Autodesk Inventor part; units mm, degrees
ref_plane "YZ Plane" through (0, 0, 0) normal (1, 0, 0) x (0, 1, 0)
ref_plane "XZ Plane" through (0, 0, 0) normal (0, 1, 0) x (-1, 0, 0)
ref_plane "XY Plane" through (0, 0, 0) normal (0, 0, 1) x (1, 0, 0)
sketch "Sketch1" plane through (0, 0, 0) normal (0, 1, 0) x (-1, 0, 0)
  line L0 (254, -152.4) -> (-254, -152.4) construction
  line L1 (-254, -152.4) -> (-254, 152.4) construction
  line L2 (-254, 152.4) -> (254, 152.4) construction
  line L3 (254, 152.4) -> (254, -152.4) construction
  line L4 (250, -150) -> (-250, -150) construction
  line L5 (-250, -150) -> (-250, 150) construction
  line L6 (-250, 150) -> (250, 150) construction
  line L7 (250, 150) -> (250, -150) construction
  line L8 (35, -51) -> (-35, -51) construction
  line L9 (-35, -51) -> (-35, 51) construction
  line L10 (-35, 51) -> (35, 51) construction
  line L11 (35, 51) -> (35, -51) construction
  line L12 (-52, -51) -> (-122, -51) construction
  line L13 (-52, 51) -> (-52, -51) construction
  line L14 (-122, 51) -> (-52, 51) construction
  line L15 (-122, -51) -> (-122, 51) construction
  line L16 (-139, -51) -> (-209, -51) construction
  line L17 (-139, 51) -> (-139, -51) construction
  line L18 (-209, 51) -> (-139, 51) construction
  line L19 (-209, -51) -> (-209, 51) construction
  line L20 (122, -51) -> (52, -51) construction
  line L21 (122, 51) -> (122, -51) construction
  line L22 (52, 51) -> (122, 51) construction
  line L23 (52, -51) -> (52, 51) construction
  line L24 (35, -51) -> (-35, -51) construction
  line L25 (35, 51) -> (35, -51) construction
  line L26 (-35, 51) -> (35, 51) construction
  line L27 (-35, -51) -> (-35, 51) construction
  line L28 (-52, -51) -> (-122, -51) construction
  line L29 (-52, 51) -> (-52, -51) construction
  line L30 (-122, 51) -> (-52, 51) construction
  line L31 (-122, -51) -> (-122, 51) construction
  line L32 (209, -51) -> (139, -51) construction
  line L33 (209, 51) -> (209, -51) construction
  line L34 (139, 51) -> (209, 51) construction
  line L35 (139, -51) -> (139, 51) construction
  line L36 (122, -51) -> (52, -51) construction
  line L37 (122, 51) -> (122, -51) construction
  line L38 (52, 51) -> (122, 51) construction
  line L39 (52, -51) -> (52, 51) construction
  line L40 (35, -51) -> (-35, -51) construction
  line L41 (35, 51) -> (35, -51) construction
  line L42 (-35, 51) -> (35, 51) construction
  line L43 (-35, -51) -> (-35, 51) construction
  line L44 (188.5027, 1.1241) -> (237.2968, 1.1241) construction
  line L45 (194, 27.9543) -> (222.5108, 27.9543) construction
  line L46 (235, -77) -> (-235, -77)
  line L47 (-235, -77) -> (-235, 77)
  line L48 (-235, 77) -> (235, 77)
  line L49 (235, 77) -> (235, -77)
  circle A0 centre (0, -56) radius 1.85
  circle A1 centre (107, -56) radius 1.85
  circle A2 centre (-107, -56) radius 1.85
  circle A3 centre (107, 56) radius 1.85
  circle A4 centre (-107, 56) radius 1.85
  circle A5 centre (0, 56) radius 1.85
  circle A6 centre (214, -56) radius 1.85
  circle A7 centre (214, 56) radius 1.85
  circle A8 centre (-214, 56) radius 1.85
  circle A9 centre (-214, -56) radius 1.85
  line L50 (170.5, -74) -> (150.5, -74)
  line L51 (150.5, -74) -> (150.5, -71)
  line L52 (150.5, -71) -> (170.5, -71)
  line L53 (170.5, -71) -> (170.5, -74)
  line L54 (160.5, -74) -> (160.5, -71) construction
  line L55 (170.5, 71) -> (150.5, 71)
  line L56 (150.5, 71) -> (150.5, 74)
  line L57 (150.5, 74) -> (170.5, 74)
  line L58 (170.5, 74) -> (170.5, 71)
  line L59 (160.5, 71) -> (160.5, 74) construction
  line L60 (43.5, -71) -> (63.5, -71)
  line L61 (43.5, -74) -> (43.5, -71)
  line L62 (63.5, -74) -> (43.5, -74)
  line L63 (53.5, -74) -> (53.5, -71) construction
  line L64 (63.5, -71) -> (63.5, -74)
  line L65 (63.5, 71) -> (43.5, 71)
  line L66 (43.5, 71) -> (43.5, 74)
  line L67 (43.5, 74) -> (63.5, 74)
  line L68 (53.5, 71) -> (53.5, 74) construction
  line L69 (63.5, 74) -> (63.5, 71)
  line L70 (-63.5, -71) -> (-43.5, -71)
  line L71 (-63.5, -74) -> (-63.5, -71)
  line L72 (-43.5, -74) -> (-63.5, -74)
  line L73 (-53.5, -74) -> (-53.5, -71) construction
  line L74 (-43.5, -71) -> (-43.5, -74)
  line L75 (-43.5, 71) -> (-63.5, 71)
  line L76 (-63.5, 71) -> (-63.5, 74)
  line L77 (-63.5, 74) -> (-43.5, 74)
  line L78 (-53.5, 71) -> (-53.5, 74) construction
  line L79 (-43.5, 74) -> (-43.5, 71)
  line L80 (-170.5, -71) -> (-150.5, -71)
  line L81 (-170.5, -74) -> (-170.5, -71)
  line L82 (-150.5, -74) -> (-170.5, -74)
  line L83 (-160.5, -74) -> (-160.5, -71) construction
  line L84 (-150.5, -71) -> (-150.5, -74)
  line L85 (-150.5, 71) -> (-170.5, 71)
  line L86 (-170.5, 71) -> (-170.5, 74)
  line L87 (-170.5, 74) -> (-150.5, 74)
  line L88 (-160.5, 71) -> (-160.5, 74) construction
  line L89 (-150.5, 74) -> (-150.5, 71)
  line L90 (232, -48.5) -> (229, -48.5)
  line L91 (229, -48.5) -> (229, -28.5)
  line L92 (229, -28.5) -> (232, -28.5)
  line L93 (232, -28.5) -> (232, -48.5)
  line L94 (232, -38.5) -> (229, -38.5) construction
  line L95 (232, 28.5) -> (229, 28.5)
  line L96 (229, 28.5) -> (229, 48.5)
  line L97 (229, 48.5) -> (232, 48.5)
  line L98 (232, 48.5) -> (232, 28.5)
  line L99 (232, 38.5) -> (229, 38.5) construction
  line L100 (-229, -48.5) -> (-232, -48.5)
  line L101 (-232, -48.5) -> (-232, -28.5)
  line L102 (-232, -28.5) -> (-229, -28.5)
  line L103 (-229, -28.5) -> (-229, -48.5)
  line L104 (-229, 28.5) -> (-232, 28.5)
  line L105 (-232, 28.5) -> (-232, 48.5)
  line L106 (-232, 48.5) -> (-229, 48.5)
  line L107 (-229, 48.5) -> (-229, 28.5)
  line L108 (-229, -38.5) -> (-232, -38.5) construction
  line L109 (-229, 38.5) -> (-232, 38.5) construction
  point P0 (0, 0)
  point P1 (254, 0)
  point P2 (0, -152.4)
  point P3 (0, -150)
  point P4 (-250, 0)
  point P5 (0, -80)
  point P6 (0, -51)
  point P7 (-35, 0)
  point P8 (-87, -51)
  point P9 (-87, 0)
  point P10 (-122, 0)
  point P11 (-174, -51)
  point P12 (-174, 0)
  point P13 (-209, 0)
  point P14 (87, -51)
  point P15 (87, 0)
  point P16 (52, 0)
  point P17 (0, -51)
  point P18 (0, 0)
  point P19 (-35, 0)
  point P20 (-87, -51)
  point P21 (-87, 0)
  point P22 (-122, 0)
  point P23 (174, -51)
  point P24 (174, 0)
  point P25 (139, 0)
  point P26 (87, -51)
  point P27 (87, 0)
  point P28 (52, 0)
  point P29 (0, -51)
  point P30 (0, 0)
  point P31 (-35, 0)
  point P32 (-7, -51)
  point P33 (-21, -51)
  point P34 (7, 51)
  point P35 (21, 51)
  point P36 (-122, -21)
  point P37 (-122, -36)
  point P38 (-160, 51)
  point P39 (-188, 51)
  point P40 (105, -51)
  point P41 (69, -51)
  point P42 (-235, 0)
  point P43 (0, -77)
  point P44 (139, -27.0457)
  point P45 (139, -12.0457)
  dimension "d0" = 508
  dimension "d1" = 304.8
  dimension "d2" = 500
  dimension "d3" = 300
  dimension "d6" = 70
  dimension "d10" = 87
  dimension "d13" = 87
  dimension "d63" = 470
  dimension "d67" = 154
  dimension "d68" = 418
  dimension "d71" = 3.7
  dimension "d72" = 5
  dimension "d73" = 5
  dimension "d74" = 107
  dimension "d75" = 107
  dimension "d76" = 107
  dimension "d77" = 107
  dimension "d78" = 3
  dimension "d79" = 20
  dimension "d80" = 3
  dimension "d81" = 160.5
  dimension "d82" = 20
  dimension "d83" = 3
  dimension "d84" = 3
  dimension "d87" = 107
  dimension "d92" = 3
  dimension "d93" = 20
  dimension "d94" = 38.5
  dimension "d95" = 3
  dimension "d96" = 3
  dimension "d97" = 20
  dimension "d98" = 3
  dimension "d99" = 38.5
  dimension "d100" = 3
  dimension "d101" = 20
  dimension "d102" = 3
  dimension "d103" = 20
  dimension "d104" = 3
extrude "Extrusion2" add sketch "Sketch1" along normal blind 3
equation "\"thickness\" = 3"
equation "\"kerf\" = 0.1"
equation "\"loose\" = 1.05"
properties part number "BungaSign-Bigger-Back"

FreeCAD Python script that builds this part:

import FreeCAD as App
import Part
import Sketcher

V = App.Vector
Q = App.Units.Quantity

doc = App.newDocument("Part")
body = doc.addObject("PartDesign::Body", "Body")

# Sketch on XZ plane
sketch1 = body.newObject("Sketcher::SketchObject", "Sketch")
sketch1.AttachmentSupport = (doc.getObject("XZ_Plane"), [""])
sketch1.MapMode = "FlatFace"
sketch1.addGeometry([
    Part.LineSegment(V(235, -77, 0), V(-235, -77, 0)),  # 0
    Part.LineSegment(V(-235, -77, 0), V(-235, 77, 0)),  # 1
    Part.LineSegment(V(-235, 77, 0), V(235, 77, 0)),  # 2
    Part.LineSegment(V(235, 77, 0), V(235, -77, 0)),  # 3
    Part.LineSegment(V(170.5, -74, 0), V(170.5, -71, 0)),  # 4
    Part.LineSegment(V(170.5, -71, 0), V(150.5, -71, 0)),  # 5
    Part.LineSegment(V(150.5, -71, 0), V(150.5, -74, 0)),  # 6
    Part.LineSegment(V(150.5, -74, 0), V(170.5, -74, 0)),  # 7
    Part.Circle(V(214, -56, 0), V(0, 0, 1), 1.9),  # 8
    Part.LineSegment(V(63.5, -74, 0), V(63.5, -71, 0)),  # 9
    Part.LineSegment(V(63.5, -71, 0), V(43.5, -71, 0)),  # 10
    Part.LineSegment(V(43.5, -71, 0), V(43.5, -74, 0)),  # 11
    Part.LineSegment(V(43.5, -74, 0), V(63.5, -74, 0)),  # 12
    Part.Circle(V(107, -56, 0), V(0, 0, 1), 1.9),  # 13
    Part.LineSegment(V(229, -28.5, 0), V(229, -48.5, 0)),  # 14
    Part.LineSegment(V(229, -48.5, 0), V(232, -48.5, 0)),  # 15
    Part.LineSegment(V(232, -48.5, 0), V(232, -28.5, 0)),  # 16
    Part.LineSegment(V(232, -28.5, 0), V(229, -28.5, 0)),  # 17
    Part.LineSegment(V(-43.5, -74, 0), V(-43.5, -71, 0)),  # 18
    Part.LineSegment(V(-43.5, -71, 0), V(-63.5, -71, 0)),  # 19
    Part.LineSegment(V(-63.5, -71, 0), V(-63.5, -74, 0)),  # 20
    Part.LineSegment(V(-63.5, -74, 0), V(-43.5, -74, 0)),  # 21
    Part.Circle(V(0, -56, 0), V(0, 0, 1), 1.9),  # 22
    Part.Circle(V(-107, -56, 0), V(0, 0, 1), 1.9),  # 23
    Part.LineSegment(V(-170.5, -71, 0), V(-170.5, -74, 0)),  # 24
    Part.LineSegment(V(-170.5, -74, 0), V(-150.5, -74, 0)),  # 25
    Part.LineSegment(V(-150.5, -74, 0), V(-150.5, -71, 0)),  # 26
    Part.LineSegment(V(-150.5, -71, 0), V(-170.5, -71, 0)),  # 27
    Part.Circle(V(-214, -56, 0), V(0, 0, 1), 1.9),  # 28
    Part.LineSegment(V(-232, -28.5, 0), V(-232, -48.5, 0)),  # 29
    Part.LineSegment(V(-232, -48.5, 0), V(-229, -48.5, 0)),  # 30
    Part.LineSegment(V(-229, -48.5, 0), V(-229, -28.5, 0)),  # 31
    Part.LineSegment(V(-229, -28.5, 0), V(-232, -28.5, 0)),  # 32
    Part.LineSegment(V(229, 48.5, 0), V(229, 28.5, 0)),  # 33
    Part.LineSegment(V(229, 28.5, 0), V(232, 28.5, 0)),  # 34
    Part.LineSegment(V(232, 28.5, 0), V(232, 48.5, 0)),  # 35
    Part.LineSegment(V(232, 48.5, 0), V(229, 48.5, 0)),  # 36
    Part.Circle(V(214, 56, 0), V(0, 0, 1), 1.9),  # 37
    Part.LineSegment(V(150.5, 74, 0), V(150.5, 71, 0)),  # 38
    Part.LineSegment(V(150.5, 71, 0), V(170.5, 71, 0)),  # 39
    Part.LineSegment(V(170.5, 71, 0), V(170.5, 74, 0)),  # 40
    Part.LineSegment(V(170.5, 74, 0), V(150.5, 74, 0)),  # 41
    Part.Circle(V(107, 56, 0), V(0, 0, 1), 1.9),  # 42
    Part.LineSegment(V(43.5, 74, 0), V(43.5, 71, 0)),  # 43
    Part.LineSegment(V(43.5, 71, 0), V(63.5, 71, 0)),  # 44
    Part.LineSegment(V(63.5, 71, 0), V(63.5, 74, 0)),  # 45
    Part.LineSegment(V(63.5, 74, 0), V(43.5, 74, 0)),  # 46
    Part.Circle(V(0, 56, 0), V(0, 0, 1), 1.9),  # 47
    Part.Circle(V(-107, 56, 0), V(0, 0, 1), 1.9),  # 48
    Part.LineSegment(V(-63.5, 74, 0), V(-63.5, 71, 0)),  # 49
    Part.LineSegment(V(-63.5, 71, 0), V(-43.5, 71, 0)),  # 50
    Part.LineSegment(V(-43.5, 71, 0), V(-43.5, 74, 0)),  # 51
    Part.LineSegment(V(-43.5, 74, 0), V(-63.5, 74, 0)),  # 52
    Part.LineSegment(V(-232, 48.5, 0), V(-232, 28.5, 0)),  # 53
    Part.LineSegment(V(-232, 28.5, 0), V(-229, 28.5, 0)),  # 54
    Part.LineSegment(V(-229, 28.5, 0), V(-229, 48.5, 0)),  # 55
    Part.LineSegment(V(-229, 48.5, 0), V(-232, 48.5, 0)),  # 56
    Part.Circle(V(-214, 56, 0), V(0, 0, 1), 1.9),  # 57
    Part.LineSegment(V(-170.5, 74, 0), V(-170.5, 71, 0)),  # 58
    Part.LineSegment(V(-170.5, 71, 0), V(-150.5, 71, 0)),  # 59
    Part.LineSegment(V(-150.5, 71, 0), V(-150.5, 74, 0)),  # 60
    Part.LineSegment(V(-150.5, 74, 0), V(-170.5, 74, 0)),  # 61
], False)
sketch1.addConstraint([
    Sketcher.Constraint("Coincident", 0, 2, 1, 1),
    Sketcher.Constraint("Coincident", 1, 2, 2, 1),
    Sketcher.Constraint("Coincident", 2, 2, 3, 1),
    Sketcher.Constraint("Coincident", 3, 2, 0, 1),
    Sketcher.Constraint("Coincident", 4, 2, 5, 1),
    Sketcher.Constraint("Coincident", 5, 2, 6, 1),
    Sketcher.Constraint("Coincident", 6, 2, 7, 1),
    Sketcher.Constraint("Coincident", 7, 2, 4, 1),
    Sketcher.Constraint("Coincident", 9, 2, 10, 1),
    Sketcher.Constraint("Coincident", 10, 2, 11, 1),
    Sketcher.Constraint("Coincident", 11, 2, 12, 1),
    Sketcher.Constraint("Coincident", 12, 2, 9, 1),
    Sketcher.Constraint("Coincident", 14, 2, 15, 1),
    Sketcher.Constraint("Coincident", 15, 2, 16, 1),
    Sketcher.Constraint("Coincident", 16, 2, 17, 1),
    Sketcher.Constraint("Coincident", 17, 2, 14, 1),
    Sketcher.Constraint("Coincident", 18, 2, 19, 1),
    Sketcher.Constraint("Coincident", 19, 2, 20, 1),
    Sketcher.Constraint("Coincident", 20, 2, 21, 1),
    Sketcher.Constraint("Coincident", 21, 2, 18, 1),
    Sketcher.Constraint("Coincident", 24, 2, 25, 1),
    Sketcher.Constraint("Coincident", 25, 2, 26, 1),
    Sketcher.Constraint("Coincident", 26, 2, 27, 1),
    Sketcher.Constraint("Coincident", 27, 2, 24, 1),
    Sketcher.Constraint("Coincident", 29, 2, 30, 1),
    Sketcher.Constraint("Coincident", 30, 2, 31, 1),
    Sketcher.Constraint("Coincident", 31, 2, 32, 1),
    Sketcher.Constraint("Coincident", 32, 2, 29, 1),
    Sketcher.Constraint("Coincident", 33, 2, 34, 1),
    Sketcher.Constraint("Coincident", 34, 2, 35, 1),
    Sketcher.Constraint("Coincident", 35, 2, 36, 1),
    Sketcher.Constraint("Coincident", 36, 2, 33, 1),
    Sketcher.Constraint("Coincident", 38, 2, 39, 1),
    Sketcher.Constraint("Coincident", 39, 2, 40, 1),
    Sketcher.Constraint("Coincident", 40, 2, 41, 1),
    Sketcher.Constraint("Coincident", 41, 2, 38, 1),
    Sketcher.Constraint("Coincident", 43, 2, 44, 1),
    Sketcher.Constraint("Coincident", 44, 2, 45, 1),
    Sketcher.Constraint("Coincident", 45, 2, 46, 1),
    Sketcher.Constraint("Coincident", 46, 2, 43, 1),
    Sketcher.Constraint("Coincident", 49, 2, 50, 1),
    Sketcher.Constraint("Coincident", 50, 2, 51, 1),
    Sketcher.Constraint("Coincident", 51, 2, 52, 1),
    Sketcher.Constraint("Coincident", 52, 2, 49, 1),
    Sketcher.Constraint("Coincident", 53, 2, 54, 1),
    Sketcher.Constraint("Coincident", 54, 2, 55, 1),
    Sketcher.Constraint("Coincident", 55, 2, 56, 1),
    Sketcher.Constraint("Coincident", 56, 2, 53, 1),
    Sketcher.Constraint("Coincident", 58, 2, 59, 1),
    Sketcher.Constraint("Coincident", 59, 2, 60, 1),
    Sketcher.Constraint("Coincident", 60, 2, 61, 1),
    Sketcher.Constraint("Coincident", 61, 2, 58, 1),
    Sketcher.Constraint("Horizontal", 0),
    Sketcher.Constraint("Vertical", 1),
    Sketcher.Constraint("Horizontal", 2),
    Sketcher.Constraint("Vertical", 3),
    Sketcher.Constraint("Vertical", 4),
    Sketcher.Constraint("Horizontal", 5),
    Sketcher.Constraint("Vertical", 6),
    Sketcher.Constraint("Horizontal", 7),
    Sketcher.Constraint("Vertical", 9),
    Sketcher.Constraint("Horizontal", 10),
    Sketcher.Constraint("Vertical", 11),
    Sketcher.Constraint("Horizontal", 12),
    Sketcher.Constraint("Vertical", 14),
    Sketcher.Constraint("Horizontal", 15),
    Sketcher.Constraint("Vertical", 16),
    Sketcher.Constraint("Horizontal", 17),
    Sketcher.Constraint("Vertical", 18),
    Sketcher.Constraint("Horizontal", 19),
    Sketcher.Constraint("Vertical", 20),
    Sketcher.Constraint("Horizontal", 21),
    Sketcher.Constraint("Vertical", 24),
    Sketcher.Constraint("Horizontal", 25),
    Sketcher.Constraint("Vertical", 26),
    Sketcher.Constraint("Horizontal", 27),
    Sketcher.Constraint("Vertical", 29),
    Sketcher.Constraint("Horizontal", 30),
    Sketcher.Constraint("Vertical", 31),
    Sketcher.Constraint("Horizontal", 32),
    Sketcher.Constraint("Vertical", 33),
    Sketcher.Constraint("Horizontal", 34),
    Sketcher.Constraint("Vertical", 35),
    Sketcher.Constraint("Horizontal", 36),
    Sketcher.Constraint("Vertical", 38),
    Sketcher.Constraint("Horizontal", 39),
    Sketcher.Constraint("Vertical", 40),
    Sketcher.Constraint("Horizontal", 41),
    Sketcher.Constraint("Vertical", 43),
    Sketcher.Constraint("Horizontal", 44),
    Sketcher.Constraint("Vertical", 45),
    Sketcher.Constraint("Horizontal", 46),
    Sketcher.Constraint("Vertical", 49),
    Sketcher.Constraint("Horizontal", 50),
    Sketcher.Constraint("Vertical", 51),
    Sketcher.Constraint("Horizontal", 52),
    Sketcher.Constraint("Vertical", 53),
    Sketcher.Constraint("Horizontal", 54),
    Sketcher.Constraint("Vertical", 55),
    Sketcher.Constraint("Horizontal", 56),
    Sketcher.Constraint("Vertical", 58),
    Sketcher.Constraint("Horizontal", 59),
    Sketcher.Constraint("Vertical", 60),
    Sketcher.Constraint("Horizontal", 61),
    Sketcher.Constraint("Equal", 8, 13),
    Sketcher.Constraint("Equal", 13, 22),
    Sketcher.Constraint("Equal", 22, 23),
    Sketcher.Constraint("Equal", 23, 28),
    Sketcher.Constraint("Equal", 28, 37),
    Sketcher.Constraint("Equal", 37, 42),
    Sketcher.Constraint("Equal", 42, 47),
    Sketcher.Constraint("Equal", 47, 48),
    Sketcher.Constraint("Equal", 48, 57),
    Sketcher.Constraint("Symmetric", 28, 3, 37, 3, -1, 1),
    Sketcher.Constraint("Symmetric", 23, 3, 42, 3, -1, 1),
    Sketcher.Constraint("Symmetric", 22, 3, 47, 3, -1, 1),
    Sketcher.Constraint("Symmetric", 13, 3, 48, 3, -1, 1),
    Sketcher.Constraint("Symmetric", 8, 3, 57, 3, -1, 1),
    Sketcher.Constraint("Symmetric", 0, 2, 2, 2, -1, 1),
    Sketcher.Constraint("Symmetric", 31, 2, 33, 2, -1, 1),
    Sketcher.Constraint("Symmetric", 29, 2, 35, 2, -1, 1),
    Sketcher.Constraint("Symmetric", 26, 2, 38, 2, -1, 1),
    Sketcher.Constraint("Symmetric", 24, 2, 40, 2, -1, 1),
    Sketcher.Constraint("Symmetric", 18, 2, 43, 2, -1, 1),
    Sketcher.Constraint("Symmetric", 20, 2, 45, 2, -1, 1),
    Sketcher.Constraint("Symmetric", 9, 2, 49, 2, -1, 1),
    Sketcher.Constraint("Symmetric", 11, 2, 51, 2, -1, 1),
    Sketcher.Constraint("Symmetric", 16, 2, 53, 2, -1, 1),
    Sketcher.Constraint("Symmetric", 14, 2, 55, 2, -1, 1),
    Sketcher.Constraint("Symmetric", 4, 2, 58, 2, -1, 1),
    Sketcher.Constraint("Symmetric", 6, 2, 60, 2, -1, 1),
    Sketcher.Constraint("Symmetric", 13, 3, 23, 3, -2),
    Sketcher.Constraint("Symmetric", 8, 3, 28, 3, -2),
    Sketcher.Constraint("Symmetric", 10, 2, 18, 2, -2),
    Sketcher.Constraint("Symmetric", 12, 2, 20, 2, -2),
    Sketcher.Constraint("Symmetric", 7, 2, 24, 2, -2),
    Sketcher.Constraint("Symmetric", 5, 2, 26, 2, -2),
    Sketcher.Constraint("Symmetric", 15, 2, 29, 2, -2),
    Sketcher.Constraint("Symmetric", 17, 2, 31, 2, -2),
    Sketcher.Constraint("PointOnObject", 22, 3, -2),
    Sketcher.Constraint("Horizontal", 8, 3, 13, 3),
    Sketcher.Constraint("Horizontal", 13, 3, 22, 3),
    Sketcher.Constraint("Horizontal", 5, 2, 9, 2),
    Sketcher.Constraint("Horizontal", 7, 2, 11, 2),
    Sketcher.Constraint("Equal", 7, 10),
    Sketcher.Constraint("Equal", 56, 4),
    Sketcher.Constraint("Equal", 61, 14),
    Sketcher.Constraint("Diameter", 8, Q("3.7 mm")),
    Sketcher.Constraint("DistanceX", 0, 2, 0, 1, Q("470 mm")),
    Sketcher.Constraint("DistanceX", 5, 2, 5, 1, Q("20 mm")),
    Sketcher.Constraint("DistanceX", 15, 1, 15, 2, Q("3 mm")),
    Sketcher.Constraint("DistanceY", 1, 1, 1, 2, Q("154 mm")),
    Sketcher.Constraint("DistanceX", -1, 1, 13, 3, Q("107 mm")),
    Sketcher.Constraint("DistanceX", -1, 1, 8, 3, Q("214 mm")),
    Sketcher.Constraint("DistanceY", 8, 3, -1, 1, Q("56 mm")),
    Sketcher.Constraint("DistanceY", 4, 2, -1, 1, Q("71 mm")),
    Sketcher.Constraint("DistanceX", -1, 1, 14, 2, Q("229 mm")),
    Sketcher.Constraint("DistanceX", -1, 1, 4, 2, Q("170.5 mm")),
    Sketcher.Constraint("DistanceX", -1, 1, 9, 2, Q("63.5 mm")),
    Sketcher.Constraint("DistanceY", 14, 2, -1, 1, Q("48.5 mm")),
])
pad1 = body.newObject("PartDesign::Pad", "Pad")
pad1.Profile = sketch1
pad1.Length = 3
pad1.Reversed = True

doc.recompute()
